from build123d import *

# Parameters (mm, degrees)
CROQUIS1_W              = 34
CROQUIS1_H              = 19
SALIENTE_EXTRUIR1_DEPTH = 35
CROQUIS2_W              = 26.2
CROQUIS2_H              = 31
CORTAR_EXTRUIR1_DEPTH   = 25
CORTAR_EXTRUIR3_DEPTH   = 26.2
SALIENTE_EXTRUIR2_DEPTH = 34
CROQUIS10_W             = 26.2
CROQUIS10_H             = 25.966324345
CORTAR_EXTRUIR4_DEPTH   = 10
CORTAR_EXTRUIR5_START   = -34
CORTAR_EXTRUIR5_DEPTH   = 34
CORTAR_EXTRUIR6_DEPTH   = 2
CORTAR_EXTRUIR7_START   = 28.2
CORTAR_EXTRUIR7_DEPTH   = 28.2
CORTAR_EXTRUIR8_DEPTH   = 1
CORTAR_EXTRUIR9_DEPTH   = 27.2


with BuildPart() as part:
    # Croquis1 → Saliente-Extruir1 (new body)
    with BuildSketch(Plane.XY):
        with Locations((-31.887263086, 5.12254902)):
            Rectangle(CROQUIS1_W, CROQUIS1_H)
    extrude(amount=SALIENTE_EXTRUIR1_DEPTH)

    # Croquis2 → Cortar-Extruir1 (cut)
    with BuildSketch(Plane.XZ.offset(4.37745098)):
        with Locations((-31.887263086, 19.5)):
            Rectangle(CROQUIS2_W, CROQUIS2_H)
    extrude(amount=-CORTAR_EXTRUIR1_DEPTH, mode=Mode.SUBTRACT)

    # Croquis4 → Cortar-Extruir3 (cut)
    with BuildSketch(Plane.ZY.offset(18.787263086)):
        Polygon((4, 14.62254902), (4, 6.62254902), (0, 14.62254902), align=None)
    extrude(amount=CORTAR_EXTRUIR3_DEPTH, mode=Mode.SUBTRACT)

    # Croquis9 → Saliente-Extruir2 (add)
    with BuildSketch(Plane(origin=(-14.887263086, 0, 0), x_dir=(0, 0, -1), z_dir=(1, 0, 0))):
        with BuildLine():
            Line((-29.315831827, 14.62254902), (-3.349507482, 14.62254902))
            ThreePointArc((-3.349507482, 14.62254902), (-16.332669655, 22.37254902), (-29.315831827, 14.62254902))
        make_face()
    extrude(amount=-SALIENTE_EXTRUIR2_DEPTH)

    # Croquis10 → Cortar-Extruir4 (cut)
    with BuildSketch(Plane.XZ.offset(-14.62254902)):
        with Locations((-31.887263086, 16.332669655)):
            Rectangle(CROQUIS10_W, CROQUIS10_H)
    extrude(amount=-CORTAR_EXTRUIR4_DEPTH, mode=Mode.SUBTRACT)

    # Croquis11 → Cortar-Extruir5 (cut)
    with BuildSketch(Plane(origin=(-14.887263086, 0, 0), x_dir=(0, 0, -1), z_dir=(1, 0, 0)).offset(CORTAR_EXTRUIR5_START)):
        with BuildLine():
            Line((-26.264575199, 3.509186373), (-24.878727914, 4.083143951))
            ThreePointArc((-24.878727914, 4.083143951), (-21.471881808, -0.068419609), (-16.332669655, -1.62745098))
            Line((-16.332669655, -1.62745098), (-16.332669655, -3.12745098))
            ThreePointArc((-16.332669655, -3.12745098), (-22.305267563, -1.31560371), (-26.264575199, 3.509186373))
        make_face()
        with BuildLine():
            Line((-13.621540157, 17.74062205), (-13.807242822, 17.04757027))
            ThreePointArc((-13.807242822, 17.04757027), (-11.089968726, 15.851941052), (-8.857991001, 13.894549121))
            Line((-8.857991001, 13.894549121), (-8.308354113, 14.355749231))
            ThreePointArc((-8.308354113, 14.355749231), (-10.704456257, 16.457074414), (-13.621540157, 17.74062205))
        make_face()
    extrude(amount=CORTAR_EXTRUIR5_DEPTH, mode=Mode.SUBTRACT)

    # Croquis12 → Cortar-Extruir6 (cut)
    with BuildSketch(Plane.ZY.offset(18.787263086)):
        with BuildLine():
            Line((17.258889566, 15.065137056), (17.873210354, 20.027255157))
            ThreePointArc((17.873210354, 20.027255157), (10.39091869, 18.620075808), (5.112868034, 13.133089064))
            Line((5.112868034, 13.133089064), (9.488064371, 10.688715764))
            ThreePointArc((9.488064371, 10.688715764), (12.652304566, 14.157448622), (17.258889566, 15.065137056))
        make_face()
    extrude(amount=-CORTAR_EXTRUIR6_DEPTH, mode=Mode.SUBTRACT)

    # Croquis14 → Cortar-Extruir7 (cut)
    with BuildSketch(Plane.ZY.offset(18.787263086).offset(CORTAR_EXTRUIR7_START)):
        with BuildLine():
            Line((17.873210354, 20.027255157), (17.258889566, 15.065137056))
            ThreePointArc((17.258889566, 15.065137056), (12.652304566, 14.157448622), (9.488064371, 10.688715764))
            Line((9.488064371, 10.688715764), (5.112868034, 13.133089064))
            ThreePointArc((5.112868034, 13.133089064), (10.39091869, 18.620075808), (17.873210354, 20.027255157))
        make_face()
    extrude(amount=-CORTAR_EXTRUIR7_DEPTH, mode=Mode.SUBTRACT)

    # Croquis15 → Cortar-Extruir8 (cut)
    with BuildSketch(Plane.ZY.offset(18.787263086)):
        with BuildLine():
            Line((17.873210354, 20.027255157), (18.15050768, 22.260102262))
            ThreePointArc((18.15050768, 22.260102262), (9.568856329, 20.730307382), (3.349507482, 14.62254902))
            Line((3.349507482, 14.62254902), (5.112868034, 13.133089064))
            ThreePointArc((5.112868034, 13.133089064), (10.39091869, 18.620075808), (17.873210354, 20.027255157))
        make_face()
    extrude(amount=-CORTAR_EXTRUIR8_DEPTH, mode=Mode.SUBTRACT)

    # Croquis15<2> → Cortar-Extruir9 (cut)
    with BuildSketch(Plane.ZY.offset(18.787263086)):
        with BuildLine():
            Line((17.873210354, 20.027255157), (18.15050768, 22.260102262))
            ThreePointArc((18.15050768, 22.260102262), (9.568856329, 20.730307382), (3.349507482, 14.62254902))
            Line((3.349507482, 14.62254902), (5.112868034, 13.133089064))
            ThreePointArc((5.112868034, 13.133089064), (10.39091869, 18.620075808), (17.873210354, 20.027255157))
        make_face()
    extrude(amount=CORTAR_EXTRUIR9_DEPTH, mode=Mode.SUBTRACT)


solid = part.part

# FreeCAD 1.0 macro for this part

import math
import FreeCAD as App
import Part
import Sketcher
from FreeCAD import Vector
Q = App.Units.Quantity


def add_polygon(sketch, points):
    """Adds a closed chain of lines whose ends are joined by coincident constraints."""
    first, n = sketch.GeometryCount, len(points)
    for a, b in zip(points, points[1:] + points[:1]):
        sketch.addGeometry(Part.LineSegment(App.Vector(*a, 0), App.Vector(*b, 0)), False)
    for i in range(n):
        sketch.addConstraint(Sketcher.Constraint("Coincident", first + i, 2, first + (i + 1) % n, 1))

doc = App.newDocument("Part")
body = doc.addObject("PartDesign::Body", "Body")

sketch1 = body.newObject("Sketcher::SketchObject", "Sketch")
sketch1.AttachmentSupport = (doc.getObject("XY_Plane"), [""])
sketch1.MapMode = "FlatFace"
add_polygon(sketch1, [(-49, 15), (-49, -4), (-15, -4), (-15, 15)])
sketch1.addConstraint([
    Sketcher.Constraint("Vertical", 0),
    Sketcher.Constraint("Horizontal", 1),
    Sketcher.Constraint("Vertical", 2),
    Sketcher.Constraint("Horizontal", 3),
    Sketcher.Constraint("DistanceX", 1, 1, 1, 2, Q("34 mm")),
    Sketcher.Constraint("DistanceY", 0, 2, 0, 1, Q("19 mm")),
    Sketcher.Constraint("DistanceY", 0, 2, -1, 1, Q("4.377451 mm")),
    Sketcher.Constraint("DistanceX", 0, 2, -1, 1, Q("48.887263 mm")),
])
pad1 = body.newObject("PartDesign::Pad", "Pad")
pad1.Profile = sketch1
pad1.Length = 35

sketch2 = body.newObject("Sketcher::SketchObject", "Sketch001")
sketch2.AttachmentSupport = (doc.getObject("XZ_Plane"), [""])
sketch2.MapMode = "FlatFace"
sketch2.AttachmentOffset = App.Placement(Vector(0, 0, 4.377451), App.Rotation())
add_polygon(sketch2, [(-45, 35), (-45, 4), (-19, 4), (-19, 35)])
sketch2.addConstraint([
    Sketcher.Constraint("Vertical", 0),
    Sketcher.Constraint("Horizontal", 1),
    Sketcher.Constraint("Vertical", 2),
    Sketcher.Constraint("Horizontal", 3),
    Sketcher.Constraint("DistanceY", 0, 2, 0, 1, Q("31 mm")),
    Sketcher.Constraint("DistanceX", 1, 1, 1, 2, Q("26.2 mm")),
    Sketcher.Constraint("DistanceY", -1, 1, 0, 2, Q("4 mm")),
    Sketcher.Constraint("DistanceX", 0, 2, -1, 1, Q("44.987263 mm")),
])
pocket1 = body.newObject("PartDesign::Pocket", "Pocket")
pocket1.Profile = sketch2
pocket1.Length = 25

sketch3 = body.newObject("Sketcher::SketchObject", "Sketch002")
sketch3.AttachmentSupport = (doc.getObject("YZ_Plane"), [""])
sketch3.MapMode = "FlatFace"
sketch3.AttachmentOffset = App.Placement(Vector(0, 0, -18.787263), App.Rotation())
add_polygon(sketch3, [(6.6, 4), (14.6, 4), (14.6, 0)])
sketch3.addConstraint([
    Sketcher.Constraint("Horizontal", 0),
    Sketcher.Constraint("Vertical", 1),
    Sketcher.Constraint("PointOnObject", 1, 2, -1),
    Sketcher.Constraint("DistanceX", 0, 1, 0, 2, Q("8 mm")),
    Sketcher.Constraint("DistanceY", 1, 2, 1, 1, Q("4 mm")),
    Sketcher.Constraint("DistanceX", -1, 1, 0, 2, Q("14.622549 mm")),
])
pocket2 = body.newObject("PartDesign::Pocket", "Pocket001")
pocket2.Profile = sketch3
pocket2.Length = 26.2

sketch4 = body.newObject("Sketcher::SketchObject", "Sketch003")
sketch4.AttachmentSupport = (doc.getObject("YZ_Plane"), [""])
sketch4.MapMode = "FlatFace"
sketch4.AttachmentOffset = App.Placement(Vector(0, 0, -14.887263), App.Rotation())
sketch4.addGeometry([
    Part.LineSegment(Vector(15, 29, 0), Vector(15, 3, 0)),
    Part.ArcOfCircle(Part.Circle(Vector(8, 16, 0), Vector(0, 0, 1), 15), math.radians(-62), math.radians(62)),
], False)
sketch4.addConstraint([
    Sketcher.Constraint("Coincident", 0, 1, 1, 2),
    Sketcher.Constraint("Coincident", 1, 1, 0, 2),
    Sketcher.Constraint("Vertical", 0),
    Sketcher.Constraint("Radius", 1, Q("14.75 mm")),
    Sketcher.Constraint("DistanceX", 1, 3, 0, 1, Q("7 mm")),
    Sketcher.Constraint("DistanceX", -1, 1, 1, 3, Q("7.622549 mm")),
    Sketcher.Constraint("DistanceY", -1, 1, 1, 3, Q("16.33267 mm")),
])
pad2 = body.newObject("PartDesign::Pad", "Pad001")
pad2.Profile = sketch4
pad2.Length = 34
pad2.Reversed = True

sketch5 = body.newObject("Sketcher::SketchObject", "Sketch004")
sketch5.AttachmentSupport = (doc.getObject("XZ_Plane"), [""])
sketch5.MapMode = "FlatFace"
sketch5.AttachmentOffset = App.Placement(Vector(0, 0, -14.622549), App.Rotation())
add_polygon(sketch5, [(-45, 29), (-45, 3), (-19, 3), (-19, 29)])
sketch5.addConstraint([
    Sketcher.Constraint("Vertical", 0),
    Sketcher.Constraint("Horizontal", 1),
    Sketcher.Constraint("Vertical", 2),
    Sketcher.Constraint("Horizontal", 3),
    Sketcher.Constraint("DistanceX", 1, 1, 1, 2, Q("26.2 mm")),
    Sketcher.Constraint("DistanceY", 0, 2, 0, 1, Q("25.966324 mm")),
    Sketcher.Constraint("DistanceY", -1, 1, 2, 2, Q("29.315832 mm")),
    Sketcher.Constraint("DistanceX", 0, 2, -1, 1, Q("44.987263 mm")),
])
pocket3 = body.newObject("PartDesign::Pocket", "Pocket002")
pocket3.Profile = sketch5
pocket3.Length = 10

sketch6 = body.newObject("Sketcher::SketchObject", "Sketch005")
sketch6.AttachmentSupport = (doc.getObject("YZ_Plane"), [""])
sketch6.MapMode = "FlatFace"
sketch6.AttachmentOffset = App.Placement(Vector(0, 0, -48.887263), App.Rotation())
sketch6.addGeometry([
    Part.LineSegment(Vector(4.1, 24.9, 0), Vector(3.5, 26.3, 0)),
    Part.ArcOfCircle(Part.Circle(Vector(7.6, 16.3, 0), Vector(0, 0, 1), 10.8), math.radians(112), math.radians(180)),
    Part.LineSegment(Vector(-3.1, 16.3, 0), Vector(-1.6, 16.3, 0)),
    Part.ArcOfCircle(Part.Circle(Vector(7.6, 16.3, 0), Vector(0, 0, 1), 9.2), math.radians(112), math.radians(180)),
    Part.LineSegment(Vector(17.7, 13.6, 0), Vector(17, 13.8, 0)),
    Part.ArcOfCircle(Part.Circle(Vector(7.6, 16.3, 0), Vector(0, 0, 1), 9.8), math.radians(-50), math.radians(-15)),
    Part.LineSegment(Vector(13.9, 8.9, 0), Vector(14.4, 8.3, 0)),
    Part.ArcOfCircle(Part.Circle(Vector(7.6, 16.3, 0), Vector(0, 0, 1), 10.5), math.radians(-50), math.radians(-15)),
], False)
sketch6.addConstraint([
    Sketcher.Constraint("Coincident", 0, 2, 1, 1),
    Sketcher.Constraint("Coincident", 1, 2, 2, 1),
    Sketcher.Constraint("Coincident", 2, 2, 3, 2),
    Sketcher.Constraint("Coincident", 3, 1, 0, 1),
    Sketcher.Constraint("Coincident", 4, 2, 5, 2),
    Sketcher.Constraint("Coincident", 5, 1, 6, 1),
    Sketcher.Constraint("Coincident", 6, 2, 7, 1),
    Sketcher.Constraint("Coincident", 7, 2, 4, 1),
    Sketcher.Constraint("Horizontal", 2),
    Sketcher.Constraint("Coincident", 3, 3, 1, 3),
    Sketcher.Constraint("Coincident", 5, 3, 1, 3),
    Sketcher.Constraint("Coincident", 7, 3, 1, 3),
    Sketcher.Constraint("Horizontal", 7, 3, 1, 2),
    Sketcher.Constraint("Angle", 4, Q("165 deg")),
    Sketcher.Constraint("Angle", 6, Q("-50 deg")),
    Sketcher.Constraint("Radius", 1, Q("10.75 mm")),
    Sketcher.Constraint("Radius", 3, Q("9.25 mm")),
    Sketcher.Constraint("Radius", 7, Q("10.475 mm")),
    Sketcher.Constraint("Radius", 5, Q("9.7575 mm")),
    Sketcher.Constraint("DistanceX", 1, 3, 5, 1, Q("6.272 mm")),
    Sketcher.Constraint("DistanceX", -1, 1, 1, 3, Q("7.622549 mm")),
    Sketcher.Constraint("DistanceY", -1, 1, 1, 3, Q("16.33267 mm")),
    Sketcher.Constraint("DistanceX", -1, 1, 4, 2, Q("17.04757 mm")),
    Sketcher.Constraint("DistanceY", 7, 3, 3, 1, Q("8.546058 mm")),
    Sketcher.Constraint("DistanceX", -1, 1, 0, 2, Q("3.509186 mm")),
])
pocket4 = body.newObject("PartDesign::Pocket", "Pocket003")
pocket4.Profile = sketch6
pocket4.Length = 34
pocket4.Reversed = True

sketch7 = body.newObject("Sketcher::SketchObject", "Sketch006")
sketch7.AttachmentSupport = (doc.getObject("YZ_Plane"), [""])
sketch7.MapMode = "FlatFace"
sketch7.AttachmentOffset = App.Placement(Vector(0, 0, -18.787263), App.Rotation())
sketch7.addGeometry([
    Part.LineSegment(Vector(15, 17, 0), Vector(20, 18, 0)),
    Part.ArcOfCircle(Part.Circle(Vector(8, 16, 0), Vector(0, 0, 1), 13), math.radians(-64), math.radians(7)),
    Part.LineSegment(Vector(13, 5, 0), Vector(11, 9, 0)),
    Part.ArcOfCircle(Part.Circle(Vector(8, 16, 0), Vector(0, 0, 1), 8), math.radians(-66), math.radians(7)),
], False)
sketch7.addConstraint([
    Sketcher.Constraint("Coincident", 0, 2, 1, 2),
    Sketcher.Constraint("Coincident", 1, 1, 2, 1),
    Sketcher.Constraint("Coincident", 2, 2, 3, 1),
    Sketcher.Constraint("Coincident", 3, 2, 0, 1),
    Sketcher.Constraint("Coincident", 3, 3, 1, 3),
    Sketcher.Constraint("Radius", 1, Q("12.5 mm")),
    Sketcher.Constraint("Radius", 3, Q("7.5 mm")),
    Sketcher.Constraint("DistanceY", 1, 1, 3, 3, Q("11.219802 mm")),
    Sketcher.Constraint("DistanceX", -1, 1, 1, 3, Q("7.622549 mm")),
    Sketcher.Constraint("DistanceY", -1, 1, 1, 3, Q("16.33267 mm")),
    Sketcher.Constraint("DistanceY", -1, 1, 0, 2, Q("17.87321 mm")),
    Sketcher.Constraint("DistanceY", -1, 1, 3, 2, Q("17.25889 mm")),
    Sketcher.Constraint("DistanceX", 2, 2, 0, 2, Q("9.338539 mm")),
])
pocket5 = body.newObject("PartDesign::Pocket", "Pocket004")
pocket5.Profile = sketch7
pocket5.Length = 2
pocket5.Reversed = True

sketch8 = body.newObject("Sketcher::SketchObject", "Sketch007")
sketch8.AttachmentSupport = (doc.getObject("YZ_Plane"), [""])
sketch8.MapMode = "FlatFace"
sketch8.AttachmentOffset = App.Placement(Vector(0, 0, -46.987263), App.Rotation())
sketch8.addGeometry([
    Part.LineSegment(Vector(15, 17, 0), Vector(20, 18, 0)),
    Part.ArcOfCircle(Part.Circle(Vector(8, 16, 0), Vector(0, 0, 1), 13), math.radians(-64), math.radians(7)),
    Part.LineSegment(Vector(13, 5, 0), Vector(11, 9, 0)),
    Part.ArcOfCircle(Part.Circle(Vector(8, 16, 0), Vector(0, 0, 1), 8), math.radians(-66), math.radians(7)),
], False)
sketch8.addConstraint([
    Sketcher.Constraint("Coincident", 0, 2, 1, 2),
    Sketcher.Constraint("Coincident", 1, 1, 2, 1),
    Sketcher.Constraint("Coincident", 2, 2, 3, 1),
    Sketcher.Constraint("Coincident", 3, 2, 0, 1),
    Sketcher.Constraint("Coincident", 3, 3, 1, 3),
    Sketcher.Constraint("Radius", 1, Q("12.5 mm")),
    Sketcher.Constraint("Radius", 3, Q("7.5 mm")),
    Sketcher.Constraint("DistanceY", 1, 1, 3, 3, Q("11.219802 mm")),
    Sketcher.Constraint("DistanceX", -1, 1, 1, 3, Q("7.622549 mm")),
    Sketcher.Constraint("DistanceY", -1, 1, 1, 3, Q("16.33267 mm")),
    Sketcher.Constraint("DistanceY", -1, 1, 0, 2, Q("17.87321 mm")),
    Sketcher.Constraint("DistanceY", -1, 1, 3, 2, Q("17.25889 mm")),
    Sketcher.Constraint("DistanceX", 2, 2, 0, 2, Q("9.338539 mm")),
])
pocket6 = body.newObject("PartDesign::Pocket", "Pocket005")
pocket6.Profile = sketch8
pocket6.Length = 28.2
pocket6.Reversed = True

sketch9 = body.newObject("Sketcher::SketchObject", "Sketch008")
sketch9.AttachmentSupport = (doc.getObject("YZ_Plane"), [""])
sketch9.MapMode = "FlatFace"
sketch9.AttachmentOffset = App.Placement(Vector(0, 0, -18.787263), App.Rotation())
sketch9.addGeometry([
    Part.LineSegment(Vector(20, 17.9, 0), Vector(22.3, 18.2, 0)),
    Part.ArcOfCircle(Part.Circle(Vector(7.6, 16.3, 0), Vector(0, 0, 1), 14.8), math.radians(-62), math.radians(7)),
    Part.LineSegment(Vector(14.6, 3.3, 0), Vector(13.1, 5.1, 0)),
    Part.ArcOfCircle(Part.Circle(Vector(7.6, 16.3, 0), Vector(0, 0, 1), 12.5), math.radians(-64), math.radians(7)),
], False)
sketch9.addConstraint([
    Sketcher.Constraint("Coincident", 0, 2, 1, 2),
    Sketcher.Constraint("Coincident", 1, 1, 2, 1),
    Sketcher.Constraint("Coincident", 2, 2, 3, 1),
    Sketcher.Constraint("Coincident", 3, 2, 0, 1),
    Sketcher.Constraint("Coincident", 3, 3, 1, 3),
    Sketcher.Constraint("Radius", 3, Q("12.5 mm")),
    Sketcher.Constraint("Radius", 1, Q("14.75 mm")),
    Sketcher.Constraint("DistanceX", 3, 3, 1, 1, Q("7 mm")),
    Sketcher.Constraint("DistanceY", 1, 1, 0, 2, Q("14.801 mm")),
    Sketcher.Constraint("DistanceY", 2, 2, 3, 3, Q("11.219802 mm")),
    Sketcher.Constraint("DistanceX", -1, 1, 1, 3, Q("7.622549 mm")),
    Sketcher.Constraint("DistanceY", -1, 1, 1, 3, Q("16.33267 mm")),
    Sketcher.Constraint("DistanceY", -1, 1, 3, 2, Q("17.87321 mm")),
])
pocket7 = body.newObject("PartDesign::Pocket", "Pocket006")
pocket7.Profile = sketch9
pocket7.Length = 1
pocket7.Reversed = True

sketch10 = body.newObject("Sketcher::SketchObject", "Sketch009")
sketch10.AttachmentSupport = (doc.getObject("YZ_Plane"), [""])
sketch10.MapMode = "FlatFace"
sketch10.AttachmentOffset = App.Placement(Vector(0, 0, -18.787263), App.Rotation())
sketch10.addGeometry([
    Part.LineSegment(Vector(20, 17.9, 0), Vector(22.3, 18.2, 0)),
    Part.ArcOfCircle(Part.Circle(Vector(7.6, 16.3, 0), Vector(0, 0, 1), 14.8), math.radians(-62), math.radians(7)),
    Part.LineSegment(Vector(14.6, 3.3, 0), Vector(13.1, 5.1, 0)),
    Part.ArcOfCircle(Part.Circle(Vector(7.6, 16.3, 0), Vector(0, 0, 1), 12.5), math.radians(-64), math.radians(7)),
], False)
sketch10.addConstraint([
    Sketcher.Constraint("Coincident", 0, 2, 1, 2),
    Sketcher.Constraint("Coincident", 1, 1, 2, 1),
    Sketcher.Constraint("Coincident", 2, 2, 3, 1),
    Sketcher.Constraint("Coincident", 3, 2, 0, 1),
    Sketcher.Constraint("Coincident", 3, 3, 1, 3),
    Sketcher.Constraint("Radius", 3, Q("12.5 mm")),
    Sketcher.Constraint("Radius", 1, Q("14.75 mm")),
    Sketcher.Constraint("DistanceX", 3, 3, 1, 1, Q("7 mm")),
    Sketcher.Constraint("DistanceY", 1, 1, 0, 2, Q("14.801 mm")),
    Sketcher.Constraint("DistanceY", 2, 2, 3, 3, Q("11.219802 mm")),
    Sketcher.Constraint("DistanceX", -1, 1, 1, 3, Q("7.622549 mm")),
    Sketcher.Constraint("DistanceY", -1, 1, 1, 3, Q("16.33267 mm")),
    Sketcher.Constraint("DistanceY", -1, 1, 3, 2, Q("17.87321 mm")),
])
pocket8 = body.newObject("PartDesign::Pocket", "Pocket007")
pocket8.Profile = sketch10
pocket8.Length = 27.2

doc.recompute()
